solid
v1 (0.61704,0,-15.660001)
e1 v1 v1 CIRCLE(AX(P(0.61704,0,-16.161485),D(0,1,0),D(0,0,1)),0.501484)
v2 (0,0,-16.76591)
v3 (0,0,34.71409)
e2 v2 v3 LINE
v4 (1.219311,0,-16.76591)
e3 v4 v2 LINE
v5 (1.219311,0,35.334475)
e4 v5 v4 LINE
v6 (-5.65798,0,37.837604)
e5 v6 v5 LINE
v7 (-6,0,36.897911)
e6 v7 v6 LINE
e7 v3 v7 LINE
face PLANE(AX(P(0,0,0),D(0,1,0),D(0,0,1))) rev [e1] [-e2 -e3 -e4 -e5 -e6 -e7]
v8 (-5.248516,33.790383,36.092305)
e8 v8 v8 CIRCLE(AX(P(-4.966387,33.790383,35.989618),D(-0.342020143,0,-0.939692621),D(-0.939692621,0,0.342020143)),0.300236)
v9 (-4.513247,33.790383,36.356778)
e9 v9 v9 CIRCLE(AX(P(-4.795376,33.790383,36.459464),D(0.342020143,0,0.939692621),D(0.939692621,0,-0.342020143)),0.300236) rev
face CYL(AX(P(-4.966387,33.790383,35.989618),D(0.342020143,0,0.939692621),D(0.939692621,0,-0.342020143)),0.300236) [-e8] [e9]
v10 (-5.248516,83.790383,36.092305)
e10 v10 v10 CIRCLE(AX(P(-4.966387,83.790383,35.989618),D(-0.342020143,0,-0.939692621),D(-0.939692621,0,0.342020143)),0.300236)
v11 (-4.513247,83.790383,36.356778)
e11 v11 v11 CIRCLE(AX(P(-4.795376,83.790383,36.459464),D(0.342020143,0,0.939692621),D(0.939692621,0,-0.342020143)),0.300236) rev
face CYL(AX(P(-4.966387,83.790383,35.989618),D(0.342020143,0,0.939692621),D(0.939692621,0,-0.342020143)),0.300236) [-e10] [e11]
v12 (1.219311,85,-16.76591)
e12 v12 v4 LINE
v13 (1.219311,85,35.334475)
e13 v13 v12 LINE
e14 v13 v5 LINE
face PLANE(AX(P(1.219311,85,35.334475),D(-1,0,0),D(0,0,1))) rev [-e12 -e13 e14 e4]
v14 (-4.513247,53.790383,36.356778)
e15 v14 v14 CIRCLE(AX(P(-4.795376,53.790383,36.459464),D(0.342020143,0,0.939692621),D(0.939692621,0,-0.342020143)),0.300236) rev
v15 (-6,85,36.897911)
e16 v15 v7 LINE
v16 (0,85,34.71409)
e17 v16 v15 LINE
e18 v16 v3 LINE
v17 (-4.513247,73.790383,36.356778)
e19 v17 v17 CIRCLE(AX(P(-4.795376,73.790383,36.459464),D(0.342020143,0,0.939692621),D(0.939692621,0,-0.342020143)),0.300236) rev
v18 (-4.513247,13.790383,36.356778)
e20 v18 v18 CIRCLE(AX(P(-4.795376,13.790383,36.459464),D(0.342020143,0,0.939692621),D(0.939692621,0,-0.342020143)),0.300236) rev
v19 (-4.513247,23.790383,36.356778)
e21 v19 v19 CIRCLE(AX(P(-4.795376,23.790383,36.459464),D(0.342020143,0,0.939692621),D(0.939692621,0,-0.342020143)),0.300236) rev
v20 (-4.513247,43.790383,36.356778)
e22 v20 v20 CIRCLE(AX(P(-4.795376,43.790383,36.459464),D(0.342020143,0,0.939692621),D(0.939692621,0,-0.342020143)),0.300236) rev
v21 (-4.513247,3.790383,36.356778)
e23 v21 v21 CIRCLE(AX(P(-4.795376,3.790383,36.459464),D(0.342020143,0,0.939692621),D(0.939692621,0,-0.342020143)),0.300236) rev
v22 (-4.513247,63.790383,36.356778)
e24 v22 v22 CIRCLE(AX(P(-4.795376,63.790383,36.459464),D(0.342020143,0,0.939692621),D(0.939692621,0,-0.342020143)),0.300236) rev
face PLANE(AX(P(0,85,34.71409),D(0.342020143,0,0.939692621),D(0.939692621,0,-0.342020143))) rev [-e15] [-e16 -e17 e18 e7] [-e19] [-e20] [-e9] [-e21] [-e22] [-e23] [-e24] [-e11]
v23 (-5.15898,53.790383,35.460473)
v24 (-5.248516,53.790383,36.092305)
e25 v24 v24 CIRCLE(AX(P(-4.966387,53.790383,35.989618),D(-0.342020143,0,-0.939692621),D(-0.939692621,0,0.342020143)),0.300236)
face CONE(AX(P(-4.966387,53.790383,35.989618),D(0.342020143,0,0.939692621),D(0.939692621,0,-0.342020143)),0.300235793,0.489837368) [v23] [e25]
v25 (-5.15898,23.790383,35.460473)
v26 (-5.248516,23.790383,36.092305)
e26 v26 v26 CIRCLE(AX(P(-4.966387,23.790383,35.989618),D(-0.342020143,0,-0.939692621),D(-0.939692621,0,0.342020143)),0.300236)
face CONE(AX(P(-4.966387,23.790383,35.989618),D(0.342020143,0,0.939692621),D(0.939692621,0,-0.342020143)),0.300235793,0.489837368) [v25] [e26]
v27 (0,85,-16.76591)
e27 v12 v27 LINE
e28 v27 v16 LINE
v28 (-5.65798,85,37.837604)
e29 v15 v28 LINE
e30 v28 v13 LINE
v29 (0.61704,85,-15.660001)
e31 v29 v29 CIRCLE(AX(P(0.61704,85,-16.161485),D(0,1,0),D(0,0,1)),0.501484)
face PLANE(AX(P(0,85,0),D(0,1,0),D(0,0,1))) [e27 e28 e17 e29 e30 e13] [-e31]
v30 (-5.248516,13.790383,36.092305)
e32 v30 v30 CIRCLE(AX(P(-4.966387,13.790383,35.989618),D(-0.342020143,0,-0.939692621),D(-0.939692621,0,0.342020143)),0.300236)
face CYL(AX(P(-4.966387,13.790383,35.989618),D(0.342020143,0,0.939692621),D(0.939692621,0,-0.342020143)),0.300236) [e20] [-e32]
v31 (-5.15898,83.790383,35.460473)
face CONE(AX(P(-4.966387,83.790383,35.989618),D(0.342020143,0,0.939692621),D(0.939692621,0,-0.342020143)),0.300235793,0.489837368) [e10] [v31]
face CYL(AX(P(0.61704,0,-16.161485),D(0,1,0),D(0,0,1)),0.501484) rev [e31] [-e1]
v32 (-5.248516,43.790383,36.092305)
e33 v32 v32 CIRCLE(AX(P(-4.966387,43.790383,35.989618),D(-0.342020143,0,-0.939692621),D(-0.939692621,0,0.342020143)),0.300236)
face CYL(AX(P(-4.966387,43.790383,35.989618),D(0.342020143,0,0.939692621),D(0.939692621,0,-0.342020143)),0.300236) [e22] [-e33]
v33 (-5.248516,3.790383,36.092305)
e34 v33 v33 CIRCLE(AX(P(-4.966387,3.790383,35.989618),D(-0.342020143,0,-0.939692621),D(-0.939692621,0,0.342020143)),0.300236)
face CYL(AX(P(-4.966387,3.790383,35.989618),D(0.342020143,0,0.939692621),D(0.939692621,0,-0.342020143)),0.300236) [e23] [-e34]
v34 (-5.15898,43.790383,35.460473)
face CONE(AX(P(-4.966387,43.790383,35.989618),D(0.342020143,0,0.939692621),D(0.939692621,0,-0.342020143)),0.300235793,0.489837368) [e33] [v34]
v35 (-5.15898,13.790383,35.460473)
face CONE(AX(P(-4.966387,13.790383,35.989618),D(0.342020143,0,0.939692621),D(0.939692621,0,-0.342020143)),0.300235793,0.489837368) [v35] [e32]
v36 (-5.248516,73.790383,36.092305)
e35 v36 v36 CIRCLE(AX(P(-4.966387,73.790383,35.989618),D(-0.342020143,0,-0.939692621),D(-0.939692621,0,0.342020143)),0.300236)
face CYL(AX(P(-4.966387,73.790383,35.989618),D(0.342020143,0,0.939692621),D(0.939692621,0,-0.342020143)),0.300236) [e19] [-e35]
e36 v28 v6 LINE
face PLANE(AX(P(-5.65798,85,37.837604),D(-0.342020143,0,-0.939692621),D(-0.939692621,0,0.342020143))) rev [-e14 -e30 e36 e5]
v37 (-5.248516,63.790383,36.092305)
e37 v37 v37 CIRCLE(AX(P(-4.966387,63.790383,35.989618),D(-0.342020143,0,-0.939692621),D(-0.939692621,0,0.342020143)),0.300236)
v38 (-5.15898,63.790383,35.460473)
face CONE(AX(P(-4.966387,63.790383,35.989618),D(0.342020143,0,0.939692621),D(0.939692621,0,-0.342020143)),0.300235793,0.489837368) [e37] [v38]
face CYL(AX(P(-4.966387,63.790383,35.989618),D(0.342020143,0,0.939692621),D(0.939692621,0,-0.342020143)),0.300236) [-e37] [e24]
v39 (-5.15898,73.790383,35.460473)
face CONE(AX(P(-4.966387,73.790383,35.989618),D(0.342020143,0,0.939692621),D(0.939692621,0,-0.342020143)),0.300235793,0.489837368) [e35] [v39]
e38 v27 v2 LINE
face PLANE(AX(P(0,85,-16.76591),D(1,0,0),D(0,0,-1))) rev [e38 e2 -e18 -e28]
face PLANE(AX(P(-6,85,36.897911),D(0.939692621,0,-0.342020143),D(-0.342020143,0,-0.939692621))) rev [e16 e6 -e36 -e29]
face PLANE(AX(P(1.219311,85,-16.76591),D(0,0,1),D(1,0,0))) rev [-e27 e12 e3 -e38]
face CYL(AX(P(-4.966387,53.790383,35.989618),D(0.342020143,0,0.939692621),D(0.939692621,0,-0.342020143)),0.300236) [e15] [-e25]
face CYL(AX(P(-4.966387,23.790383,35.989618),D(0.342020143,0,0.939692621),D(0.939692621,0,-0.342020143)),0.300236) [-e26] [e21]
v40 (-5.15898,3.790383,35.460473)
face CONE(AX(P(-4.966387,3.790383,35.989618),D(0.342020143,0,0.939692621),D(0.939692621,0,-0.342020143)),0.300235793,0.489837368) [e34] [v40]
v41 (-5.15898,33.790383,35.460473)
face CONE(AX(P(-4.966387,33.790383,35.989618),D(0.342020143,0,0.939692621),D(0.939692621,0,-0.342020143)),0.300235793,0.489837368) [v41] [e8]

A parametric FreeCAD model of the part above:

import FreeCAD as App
import Part
import Sketcher
from FreeCAD import Vector
Q = App.Units.Quantity


def add_polygon(sketch, points):
    """Adds a closed chain of lines whose ends are joined by coincident constraints."""
    first, n = sketch.GeometryCount, len(points)
    for a, b in zip(points, points[1:] + points[:1]):
        sketch.addGeometry(Part.LineSegment(App.Vector(*a, 0), App.Vector(*b, 0)), False)
    for i in range(n):
        sketch.addConstraint(Sketcher.Constraint("Coincident", first + i, 2, first + (i + 1) % n, 1))

doc = App.newDocument("Part")
body = doc.addObject("PartDesign::Body", "Body")

sketch1 = body.newObject("Sketcher::SketchObject", "Sketch")
sketch1.AttachmentSupport = (doc.getObject("XZ_Plane"), [""])
sketch1.MapMode = "FlatFace"
add_polygon(sketch1, [(0, -16.8), (0, 34.7), (-6, 36.9), (-5.7, 37.8), (1.2, 35.3), (1.2, -16.8)])
sketch1.addConstraint(Sketcher.Constraint("Vertical", 0))
sketch1.addConstraint(Sketcher.Constraint("Vertical", 4))
sketch1.addConstraint(Sketcher.Constraint("Horizontal", 5))
sketch1.addConstraint(Sketcher.Constraint("PointOnObject", 0, 2, -2))
sketch1.addConstraint(Sketcher.Constraint("Perpendicular", 1, 2))
sketch1.addConstraint(Sketcher.Constraint("Perpendicular", 2, 3))
sketch1.addConstraint(Sketcher.Constraint("Angle", 1, Q("160 deg")))
sketch1.addConstraint(Sketcher.Constraint("Distance", 2, 1.0))
sketch1.addConstraint(Sketcher.Constraint("DistanceX", 1, 2, -1, 1, 6.0))
sketch1.addConstraint(Sketcher.Constraint("DistanceY", 0, 1, 0, 2, 51.48))
sketch1.addConstraint(Sketcher.Constraint("DistanceX", 5, 2, 5, 1, 1.219311))
sketch1.addConstraint(Sketcher.Constraint("DistanceY", -1, 1, 0, 2, 34.71409))
pad1 = body.newObject("PartDesign::Pad", "Pad")
pad1.Profile = sketch1
pad1.Length = 85
pad1.Reversed = True

sketch2 = body.newObject("Sketcher::SketchObject", "Sketch001")
sketch2.AttachmentSupport = (doc.getObject("XZ_Plane"), [""])
sketch2.MapMode = "FlatFace"
sketch2.AttachmentOffset = App.Placement(Vector(0, 0, -85), App.Rotation())
sketch2.addGeometry(Part.Circle(Vector(0.6, -16.2, 0), Vector(0, 0, 1), 0.5), False)
sketch2.addConstraint(Sketcher.Constraint("Diameter", 0, 1.002968))
sketch2.addConstraint(Sketcher.Constraint("DistanceX", -1, 1, 0, 3, 0.61704))
sketch2.addConstraint(Sketcher.Constraint("DistanceY", 0, 3, -1, 1, 16.161485))
pocket1 = body.newObject("PartDesign::Pocket", "Pocket")
pocket1.Profile = sketch2
pocket1.Type = "ThroughAll"
pocket1.Reversed = True

sketch3 = body.newObject("Sketcher::SketchObject", "Sketch002")
sketch3.Placement = App.Placement(Vector(11.156893, 0, 30.653313), App.Rotation(Vector(-0.939692621, 0, 0.342020143), Vector(0, 1, 0), Vector(-0.342020143, 0, -0.939692621), "ZXY"))
sketch3.addGeometry(Part.Circle(Vector(16.98, 83.79, 0), Vector(0, 0, 1), 0.3), False)
sketch3.addConstraint(Sketcher.Constraint("Diameter", 0, 0.600472))
sketch3.addConstraint(Sketcher.Constraint("DistanceX", -1, 1, 0, 3, 16.976051))
sketch3.addConstraint(Sketcher.Constraint("DistanceY", -1, 1, 0, 3, 83.790383))
pad2 = body.newObject("PartDesign::Pad", "Pad001")
pad2.Profile = sketch3
pad2.Length = 0.5

sketch4 = body.newObject("Sketcher::SketchObject", "Sketch003")
sketch4.Placement = App.Placement(Vector(-13.679602, -0.418102, 4.978968), App.Rotation(Vector(0.341719597, 0.010444277, 0.93974392), Vector(-0.030549616, 0.999533252, 0), Vector(-0.939305296, -0.028708816, 0.341879168), "ZXY"))
add_polygon(sketch4, [(33, 83.9), (33, 84.2), (32.44, 83.91)])
sketch4.addGeometry(Part.LineSegment(Vector(33, 83.9, 0), Vector(32.44, 83.91, 0)), True)
sketch4.addConstraint(Sketcher.Constraint("Vertical", 0))
sketch4.addConstraint(Sketcher.Constraint("Coincident", 3, 1, 2, 2))
sketch4.addConstraint(Sketcher.Constraint("Coincident", 3, 2, 1, 2))
sketch4.addConstraint(Sketcher.Constraint("Distance", 2, 0.566242))
sketch4.addConstraint(Sketcher.Constraint("DistanceY", 0, 1, 0, 2, 0.300252))
sketch4.addConstraint(Sketcher.Constraint("DistanceX", -1, 1, 0, 2, 33.00218))
sketch4.addConstraint(Sketcher.Constraint("DistanceX", -1, 1, 1, 2, 32.435969))
sketch4.addConstraint(Sketcher.Constraint("DistanceY", -1, 1, 1, 2, 83.908879))
revolution = body.newObject("PartDesign::Revolution", "Revolution")
revolution.Profile = sketch4
revolution.ReferenceAxis = (sketch4, ["Axis0"])
revolution.Angle = 360
doc.recompute()

linearpattern = body.newObject("PartDesign::LinearPattern", "LinearPattern")
linearpattern.Originals = [pad2, revolution]
linearpattern.Direction = (doc.getObject("Y_Axis"), [""])
linearpattern.Mode = "offset"
linearpattern.Offset = 10
linearpattern.Occurrences = 9
linearpattern.Reversed = True
body.Tip = linearpattern

doc.recompute()
